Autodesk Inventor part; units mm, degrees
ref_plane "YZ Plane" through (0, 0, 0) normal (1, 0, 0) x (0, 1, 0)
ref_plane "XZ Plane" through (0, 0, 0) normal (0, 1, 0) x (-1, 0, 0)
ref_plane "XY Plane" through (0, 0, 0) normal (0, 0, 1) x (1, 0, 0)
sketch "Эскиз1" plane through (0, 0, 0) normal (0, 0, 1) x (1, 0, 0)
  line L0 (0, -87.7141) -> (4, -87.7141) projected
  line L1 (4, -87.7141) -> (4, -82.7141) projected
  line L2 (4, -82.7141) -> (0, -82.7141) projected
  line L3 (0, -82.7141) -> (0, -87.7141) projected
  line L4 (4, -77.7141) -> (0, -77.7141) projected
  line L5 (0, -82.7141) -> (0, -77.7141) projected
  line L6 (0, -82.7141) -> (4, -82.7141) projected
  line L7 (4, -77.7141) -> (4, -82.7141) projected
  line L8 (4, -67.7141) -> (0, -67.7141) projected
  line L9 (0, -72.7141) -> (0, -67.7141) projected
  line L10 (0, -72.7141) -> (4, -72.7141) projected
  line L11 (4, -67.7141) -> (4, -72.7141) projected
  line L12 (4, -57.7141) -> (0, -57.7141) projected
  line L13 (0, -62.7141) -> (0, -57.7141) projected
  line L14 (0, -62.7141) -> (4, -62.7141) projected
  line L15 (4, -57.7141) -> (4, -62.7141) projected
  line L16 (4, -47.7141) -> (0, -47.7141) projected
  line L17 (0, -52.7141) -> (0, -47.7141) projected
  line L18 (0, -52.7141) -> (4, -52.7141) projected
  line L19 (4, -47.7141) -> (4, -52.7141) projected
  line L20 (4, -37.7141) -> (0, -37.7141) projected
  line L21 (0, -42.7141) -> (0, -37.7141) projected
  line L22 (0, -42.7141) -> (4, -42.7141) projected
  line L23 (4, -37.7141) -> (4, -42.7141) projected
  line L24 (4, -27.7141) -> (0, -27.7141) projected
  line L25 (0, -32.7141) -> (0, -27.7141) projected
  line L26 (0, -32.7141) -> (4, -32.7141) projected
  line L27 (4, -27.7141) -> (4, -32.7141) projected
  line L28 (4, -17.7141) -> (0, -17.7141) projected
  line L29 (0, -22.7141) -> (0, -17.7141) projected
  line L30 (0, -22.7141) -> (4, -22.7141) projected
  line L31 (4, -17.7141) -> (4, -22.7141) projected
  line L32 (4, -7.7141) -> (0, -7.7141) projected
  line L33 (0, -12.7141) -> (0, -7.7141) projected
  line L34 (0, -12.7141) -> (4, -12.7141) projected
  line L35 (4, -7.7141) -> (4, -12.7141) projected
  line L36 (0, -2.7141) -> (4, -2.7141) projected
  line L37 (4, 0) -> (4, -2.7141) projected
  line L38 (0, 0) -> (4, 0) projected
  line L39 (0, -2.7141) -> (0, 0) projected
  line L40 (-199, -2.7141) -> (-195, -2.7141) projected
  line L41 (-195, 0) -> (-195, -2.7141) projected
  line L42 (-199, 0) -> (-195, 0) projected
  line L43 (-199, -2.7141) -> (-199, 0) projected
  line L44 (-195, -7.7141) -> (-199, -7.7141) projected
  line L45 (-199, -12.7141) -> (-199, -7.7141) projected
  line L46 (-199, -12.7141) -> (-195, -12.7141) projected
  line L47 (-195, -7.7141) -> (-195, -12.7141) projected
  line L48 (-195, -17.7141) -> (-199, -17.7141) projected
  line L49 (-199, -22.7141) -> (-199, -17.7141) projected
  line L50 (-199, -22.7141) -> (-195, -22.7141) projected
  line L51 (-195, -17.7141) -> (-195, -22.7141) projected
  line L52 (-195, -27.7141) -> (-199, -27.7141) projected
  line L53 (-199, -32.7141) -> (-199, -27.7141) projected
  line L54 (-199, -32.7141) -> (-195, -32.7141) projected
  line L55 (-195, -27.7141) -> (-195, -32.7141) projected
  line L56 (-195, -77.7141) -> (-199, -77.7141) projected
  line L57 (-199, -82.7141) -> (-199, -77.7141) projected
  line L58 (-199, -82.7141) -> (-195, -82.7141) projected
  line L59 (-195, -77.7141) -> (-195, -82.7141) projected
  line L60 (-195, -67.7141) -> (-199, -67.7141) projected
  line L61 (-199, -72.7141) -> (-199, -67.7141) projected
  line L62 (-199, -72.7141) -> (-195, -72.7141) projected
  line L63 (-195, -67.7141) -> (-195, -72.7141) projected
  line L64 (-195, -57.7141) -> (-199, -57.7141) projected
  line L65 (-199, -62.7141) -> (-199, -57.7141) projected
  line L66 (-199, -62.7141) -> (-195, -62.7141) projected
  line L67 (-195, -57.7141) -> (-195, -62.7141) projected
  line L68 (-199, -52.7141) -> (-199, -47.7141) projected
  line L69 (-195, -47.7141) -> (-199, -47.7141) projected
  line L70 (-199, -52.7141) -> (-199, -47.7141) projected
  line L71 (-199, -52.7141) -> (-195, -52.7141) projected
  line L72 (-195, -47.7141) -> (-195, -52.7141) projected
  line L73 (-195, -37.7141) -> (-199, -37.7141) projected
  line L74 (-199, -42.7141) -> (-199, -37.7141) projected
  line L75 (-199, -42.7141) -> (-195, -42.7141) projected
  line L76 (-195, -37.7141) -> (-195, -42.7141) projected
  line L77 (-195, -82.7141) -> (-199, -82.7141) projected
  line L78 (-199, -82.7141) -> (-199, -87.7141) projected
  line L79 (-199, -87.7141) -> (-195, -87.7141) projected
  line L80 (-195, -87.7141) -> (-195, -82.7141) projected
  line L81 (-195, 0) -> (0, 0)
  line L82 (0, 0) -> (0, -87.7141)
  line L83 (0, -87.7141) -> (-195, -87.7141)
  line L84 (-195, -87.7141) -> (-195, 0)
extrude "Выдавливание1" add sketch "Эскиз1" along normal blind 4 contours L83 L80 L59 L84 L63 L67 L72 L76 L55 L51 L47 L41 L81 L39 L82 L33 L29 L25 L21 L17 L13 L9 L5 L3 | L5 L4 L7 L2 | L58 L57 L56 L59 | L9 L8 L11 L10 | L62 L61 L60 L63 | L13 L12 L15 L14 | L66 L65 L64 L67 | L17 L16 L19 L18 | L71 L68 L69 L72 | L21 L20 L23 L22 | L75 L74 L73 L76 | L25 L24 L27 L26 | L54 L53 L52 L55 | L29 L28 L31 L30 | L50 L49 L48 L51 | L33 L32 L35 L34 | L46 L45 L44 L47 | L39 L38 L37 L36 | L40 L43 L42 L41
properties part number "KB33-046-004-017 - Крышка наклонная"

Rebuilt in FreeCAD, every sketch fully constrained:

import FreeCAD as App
import Part
import Sketcher

V = App.Vector

doc = App.newDocument("Part")
params = doc.addObject("Spreadsheet::Sheet", "Params")
for row, (alias, value) in enumerate([
    ("sketch1_width", "195 mm"),
    ("sketch1_width2", "4 mm"),
    ("sketch1_height", "5 mm"),
    ("pad1_length", "4 mm"),
], start=1):
    params.set(f"A{row}", alias)
    params.set(f"B{row}", "=" + value)
    params.setAlias(f"B{row}", alias)

body = doc.addObject("PartDesign::Body", "Body")

sketch1 = body.newObject("Sketcher::SketchObject", "Sketch")
sketch1.AttachmentSupport = (doc.getObject("XY_Plane"), [""])
sketch1.MapMode = "FlatFace"
sketch1.addGeometry([
    Part.LineSegment(V(-195, -87.7, 0), V(0, -87.7, 0)),
    Part.LineSegment(V(0, -87.7, 0), V(0, -82.7, 0)),
    Part.LineSegment(V(0, -82.7, 0), V(4, -82.7, 0)),
    Part.LineSegment(V(4, -82.7, 0), V(4, -77.7, 0)),
    Part.LineSegment(V(4, -77.7, 0), V(0, -77.7, 0)),
    Part.LineSegment(V(0, -77.7, 0), V(0, -72.7, 0)),
    Part.LineSegment(V(0, -72.7, 0), V(4, -72.7, 0)),
    Part.LineSegment(V(4, -72.7, 0), V(4, -67.7, 0)),
    Part.LineSegment(V(4, -67.7, 0), V(0, -67.7, 0)),
    Part.LineSegment(V(0, -67.7, 0), V(0, -62.7, 0)),
    Part.LineSegment(V(0, -62.7, 0), V(4, -62.7, 0)),
    Part.LineSegment(V(4, -62.7, 0), V(4, -57.7, 0)),
    Part.LineSegment(V(4, -57.7, 0), V(0, -57.7, 0)),
    Part.LineSegment(V(0, -57.7, 0), V(0, -52.7, 0)),
    Part.LineSegment(V(0, -52.7, 0), V(4, -52.7, 0)),
    Part.LineSegment(V(4, -52.7, 0), V(4, -47.7, 0)),
    Part.LineSegment(V(4, -47.7, 0), V(0, -47.7, 0)),
    Part.LineSegment(V(0, -47.7, 0), V(0, -42.7, 0)),
    Part.LineSegment(V(0, -42.7, 0), V(4, -42.7, 0)),
    Part.LineSegment(V(4, -42.7, 0), V(4, -37.7, 0)),
    Part.LineSegment(V(4, -37.7, 0), V(0, -37.7, 0)),
    Part.LineSegment(V(0, -37.7, 0), V(0, -32.7, 0)),
    Part.LineSegment(V(0, -32.7, 0), V(4, -32.7, 0)),
    Part.LineSegment(V(4, -32.7, 0), V(4, -27.7, 0)),
    Part.LineSegment(V(4, -27.7, 0), V(0, -27.7, 0)),
    Part.LineSegment(V(0, -27.7, 0), V(0, -22.7, 0)),
    Part.LineSegment(V(0, -22.7, 0), V(4, -22.7, 0)),
    Part.LineSegment(V(4, -22.7, 0), V(4, -17.7, 0)),
    Part.LineSegment(V(4, -17.7, 0), V(0, -17.7, 0)),
    Part.LineSegment(V(0, -17.7, 0), V(0, -12.7, 0)),
    Part.LineSegment(V(0, -12.7, 0), V(4, -12.7, 0)),
    Part.LineSegment(V(4, -12.7, 0), V(4, -7.7, 0)),
    Part.LineSegment(V(4, -7.7, 0), V(0, -7.7, 0)),
    Part.LineSegment(V(0, -7.7, 0), V(0, -2.7, 0)),
    Part.LineSegment(V(0, -2.7, 0), V(4, -2.7, 0)),
    Part.LineSegment(V(4, -2.7, 0), V(4, 0, 0)),
    Part.LineSegment(V(4, 0, 0), V(-199, 0, 0)),
    Part.LineSegment(V(-199, 0, 0), V(-199, -2.7, 0)),
    Part.LineSegment(V(-199, -2.7, 0), V(-195, -2.7, 0)),
    Part.LineSegment(V(-195, -2.7, 0), V(-195, -7.7, 0)),
    Part.LineSegment(V(-195, -7.7, 0), V(-199, -7.7, 0)),
    Part.LineSegment(V(-199, -7.7, 0), V(-199, -12.7, 0)),
    Part.LineSegment(V(-199, -12.7, 0), V(-195, -12.7, 0)),
    Part.LineSegment(V(-195, -12.7, 0), V(-195, -17.7, 0)),
    Part.LineSegment(V(-195, -17.7, 0), V(-199, -17.7, 0)),
    Part.LineSegment(V(-199, -17.7, 0), V(-199, -22.7, 0)),
    Part.LineSegment(V(-199, -22.7, 0), V(-195, -22.7, 0)),
    Part.LineSegment(V(-195, -22.7, 0), V(-195, -27.7, 0)),
    Part.LineSegment(V(-195, -27.7, 0), V(-199, -27.7, 0)),
    Part.LineSegment(V(-199, -27.7, 0), V(-199, -32.7, 0)),
    Part.LineSegment(V(-199, -32.7, 0), V(-195, -32.7, 0)),
    Part.LineSegment(V(-195, -32.7, 0), V(-195, -37.7, 0)),
    Part.LineSegment(V(-195, -37.7, 0), V(-199, -37.7, 0)),
    Part.LineSegment(V(-199, -37.7, 0), V(-199, -42.7, 0)),
    Part.LineSegment(V(-199, -42.7, 0), V(-195, -42.7, 0)),
    Part.LineSegment(V(-195, -42.7, 0), V(-195, -47.7, 0)),
    Part.LineSegment(V(-195, -47.7, 0), V(-199, -47.7, 0)),
    Part.LineSegment(V(-199, -47.7, 0), V(-199, -52.7, 0)),
    Part.LineSegment(V(-199, -52.7, 0), V(-195, -52.7, 0)),
    Part.LineSegment(V(-195, -52.7, 0), V(-195, -57.7, 0)),
    Part.LineSegment(V(-195, -57.7, 0), V(-199, -57.7, 0)),
    Part.LineSegment(V(-199, -57.7, 0), V(-199, -62.7, 0)),
    Part.LineSegment(V(-199, -62.7, 0), V(-195, -62.7, 0)),
    Part.LineSegment(V(-195, -62.7, 0), V(-195, -67.7, 0)),
    Part.LineSegment(V(-195, -67.7, 0), V(-199, -67.7, 0)),
    Part.LineSegment(V(-199, -67.7, 0), V(-199, -72.7, 0)),
    Part.LineSegment(V(-199, -72.7, 0), V(-195, -72.7, 0)),
    Part.LineSegment(V(-195, -72.7, 0), V(-195, -77.7, 0)),
    Part.LineSegment(V(-195, -77.7, 0), V(-199, -77.7, 0)),
    Part.LineSegment(V(-199, -77.7, 0), V(-199, -82.7, 0)),
    Part.LineSegment(V(-199, -82.7, 0), V(-195, -82.7, 0)),
    Part.LineSegment(V(-195, -82.7, 0), V(-195, -87.7, 0)),
], False)
sketch1.addConstraint([
    Sketcher.Constraint("Coincident", 0, 2, 1, 1),
    Sketcher.Constraint("Coincident", 1, 2, 2, 1),
    Sketcher.Constraint("Coincident", 2, 2, 3, 1),
    Sketcher.Constraint("Coincident", 3, 2, 4, 1),
    Sketcher.Constraint("Coincident", 4, 2, 5, 1),
    Sketcher.Constraint("Coincident", 5, 2, 6, 1),
    Sketcher.Constraint("Coincident", 6, 2, 7, 1),
    Sketcher.Constraint("Coincident", 7, 2, 8, 1),
    Sketcher.Constraint("Coincident", 8, 2, 9, 1),
    Sketcher.Constraint("Coincident", 9, 2, 10, 1),
    Sketcher.Constraint("Coincident", 10, 2, 11, 1),
    Sketcher.Constraint("Coincident", 11, 2, 12, 1),
    Sketcher.Constraint("Coincident", 12, 2, 13, 1),
    Sketcher.Constraint("Coincident", 13, 2, 14, 1),
    Sketcher.Constraint("Coincident", 14, 2, 15, 1),
    Sketcher.Constraint("Coincident", 15, 2, 16, 1),
    Sketcher.Constraint("Coincident", 16, 2, 17, 1),
    Sketcher.Constraint("Coincident", 17, 2, 18, 1),
    Sketcher.Constraint("Coincident", 18, 2, 19, 1),
    Sketcher.Constraint("Coincident", 19, 2, 20, 1),
    Sketcher.Constraint("Coincident", 20, 2, 21, 1),
    Sketcher.Constraint("Coincident", 21, 2, 22, 1),
    Sketcher.Constraint("Coincident", 22, 2, 23, 1),
    Sketcher.Constraint("Coincident", 23, 2, 24, 1),
    Sketcher.Constraint("Coincident", 24, 2, 25, 1),
    Sketcher.Constraint("Coincident", 25, 2, 26, 1),
    Sketcher.Constraint("Coincident", 26, 2, 27, 1),
    Sketcher.Constraint("Coincident", 27, 2, 28, 1),
    Sketcher.Constraint("Coincident", 28, 2, 29, 1),
    Sketcher.Constraint("Coincident", 29, 2, 30, 1),
    Sketcher.Constraint("Coincident", 30, 2, 31, 1),
    Sketcher.Constraint("Coincident", 31, 2, 32, 1),
    Sketcher.Constraint("Coincident", 32, 2, 33, 1),
    Sketcher.Constraint("Coincident", 33, 2, 34, 1),
    Sketcher.Constraint("Coincident", 34, 2, 35, 1),
    Sketcher.Constraint("Coincident", 35, 2, 36, 1),
    Sketcher.Constraint("Coincident", 36, 2, 37, 1),
    Sketcher.Constraint("Coincident", 37, 2, 38, 1),
    Sketcher.Constraint("Coincident", 38, 2, 39, 1),
    Sketcher.Constraint("Coincident", 39, 2, 40, 1),
    Sketcher.Constraint("Coincident", 40, 2, 41, 1),
    Sketcher.Constraint("Coincident", 41, 2, 42, 1),
    Sketcher.Constraint("Coincident", 42, 2, 43, 1),
    Sketcher.Constraint("Coincident", 43, 2, 44, 1),
    Sketcher.Constraint("Coincident", 44, 2, 45, 1),
    Sketcher.Constraint("Coincident", 45, 2, 46, 1),
    Sketcher.Constraint("Coincident", 46, 2, 47, 1),
    Sketcher.Constraint("Coincident", 47, 2, 48, 1),
    Sketcher.Constraint("Coincident", 48, 2, 49, 1),
    Sketcher.Constraint("Coincident", 49, 2, 50, 1),
    Sketcher.Constraint("Coincident", 50, 2, 51, 1),
    Sketcher.Constraint("Coincident", 51, 2, 52, 1),
    Sketcher.Constraint("Coincident", 52, 2, 53, 1),
    Sketcher.Constraint("Coincident", 53, 2, 54, 1),
    Sketcher.Constraint("Coincident", 54, 2, 55, 1),
    Sketcher.Constraint("Coincident", 55, 2, 56, 1),
    Sketcher.Constraint("Coincident", 56, 2, 57, 1),
    Sketcher.Constraint("Coincident", 57, 2, 58, 1),
    Sketcher.Constraint("Coincident", 58, 2, 59, 1),
    Sketcher.Constraint("Coincident", 59, 2, 60, 1),
    Sketcher.Constraint("Coincident", 60, 2, 61, 1),
    Sketcher.Constraint("Coincident", 61, 2, 62, 1),
    Sketcher.Constraint("Coincident", 62, 2, 63, 1),
    Sketcher.Constraint("Coincident", 63, 2, 64, 1),
    Sketcher.Constraint("Coincident", 64, 2, 65, 1),
    Sketcher.Constraint("Coincident", 65, 2, 66, 1),
    Sketcher.Constraint("Coincident", 66, 2, 67, 1),
    Sketcher.Constraint("Coincident", 67, 2, 68, 1),
    Sketcher.Constraint("Coincident", 68, 2, 69, 1),
    Sketcher.Constraint("Coincident", 69, 2, 70, 1),
    Sketcher.Constraint("Coincident", 70, 2, 71, 1),
    Sketcher.Constraint("Coincident", 71, 2, 0, 1),
    Sketcher.Constraint("Horizontal", 0),
    Sketcher.Constraint("Vertical", 1),
    Sketcher.Constraint("Horizontal", 2),
    Sketcher.Constraint("Vertical", 3),
    Sketcher.Constraint("Horizontal", 4),
    Sketcher.Constraint("Vertical", 5),
    Sketcher.Constraint("Horizontal", 6),
    Sketcher.Constraint("Vertical", 7),
    Sketcher.Constraint("Horizontal", 8),
    Sketcher.Constraint("Vertical", 9),
    Sketcher.Constraint("Horizontal", 10),
    Sketcher.Constraint("Vertical", 11),
    Sketcher.Constraint("Horizontal", 12),
    Sketcher.Constraint("Vertical", 13),
    Sketcher.Constraint("Horizontal", 14),
    Sketcher.Constraint("Vertical", 15),
    Sketcher.Constraint("Horizontal", 16),
    Sketcher.Constraint("Vertical", 17),
    Sketcher.Constraint("Horizontal", 18),
    Sketcher.Constraint("Vertical", 19),
    Sketcher.Constraint("Horizontal", 20),
    Sketcher.Constraint("Vertical", 21),
    Sketcher.Constraint("Horizontal", 22),
    Sketcher.Constraint("Vertical", 23),
    Sketcher.Constraint("Horizontal", 24),
    Sketcher.Constraint("Vertical", 25),
    Sketcher.Constraint("Horizontal", 26),
    Sketcher.Constraint("Vertical", 27),
    Sketcher.Constraint("Horizontal", 28),
    Sketcher.Constraint("Vertical", 29),
    Sketcher.Constraint("Horizontal", 30),
    Sketcher.Constraint("Vertical", 31),
    Sketcher.Constraint("Horizontal", 32),
    Sketcher.Constraint("Vertical", 33),
    Sketcher.Constraint("Horizontal", 34),
    Sketcher.Constraint("Vertical", 35),
    Sketcher.Constraint("Horizontal", 36),
    Sketcher.Constraint("Vertical", 37),
    Sketcher.Constraint("Horizontal", 38),
    Sketcher.Constraint("Vertical", 39),
    Sketcher.Constraint("Horizontal", 40),
    Sketcher.Constraint("Vertical", 41),
    Sketcher.Constraint("Horizontal", 42),
    Sketcher.Constraint("Vertical", 43),
    Sketcher.Constraint("Horizontal", 44),
    Sketcher.Constraint("Vertical", 45),
    Sketcher.Constraint("Horizontal", 46),
    Sketcher.Constraint("Vertical", 47),
    Sketcher.Constraint("Horizontal", 48),
    Sketcher.Constraint("Vertical", 49),
    Sketcher.Constraint("Horizontal", 50),
    Sketcher.Constraint("Vertical", 51),
    Sketcher.Constraint("Horizontal", 52),
    Sketcher.Constraint("Vertical", 53),
    Sketcher.Constraint("Horizontal", 54),
    Sketcher.Constraint("Vertical", 55),
    Sketcher.Constraint("Horizontal", 56),
    Sketcher.Constraint("Vertical", 57),
    Sketcher.Constraint("Horizontal", 58),
    Sketcher.Constraint("Vertical", 59),
    Sketcher.Constraint("Horizontal", 60),
    Sketcher.Constraint("Vertical", 61),
    Sketcher.Constraint("Horizontal", 62),
    Sketcher.Constraint("Vertical", 63),
    Sketcher.Constraint("Horizontal", 64),
    Sketcher.Constraint("Vertical", 65),
    Sketcher.Constraint("Horizontal", 66),
    Sketcher.Constraint("Vertical", 67),
    Sketcher.Constraint("Horizontal", 68),
    Sketcher.Constraint("Vertical", 69),
    Sketcher.Constraint("Horizontal", 70),
    Sketcher.Constraint("Vertical", 71),
    Sketcher.Constraint("PointOnObject", 0, 2, -2),
    Sketcher.Constraint("PointOnObject", 4, 2, -2),
    Sketcher.Constraint("PointOnObject", 8, 2, -2),
    Sketcher.Constraint("PointOnObject", 12, 2, -2),
    Sketcher.Constraint("PointOnObject", 16, 2, -2),
    Sketcher.Constraint("PointOnObject", 20, 2, -2),
    Sketcher.Constraint("PointOnObject", 24, 2, -2),
    Sketcher.Constraint("PointOnObject", 28, 2, -2),
    Sketcher.Constraint("PointOnObject", 32, 2, -2),
    Sketcher.Constraint("PointOnObject", 35, 2, -1),
    Sketcher.Constraint("Horizontal", 34, 2, 37, 2),
    Sketcher.Constraint("Horizontal", 32, 2, 39, 2),
    Sketcher.Constraint("Horizontal", 30, 2, 41, 2),
    Sketcher.Constraint("Horizontal", 28, 2, 43, 2),
    Sketcher.Constraint("Horizontal", 26, 2, 45, 2),
    Sketcher.Constraint("Horizontal", 24, 2, 47, 2),
    Sketcher.Constraint("Horizontal", 22, 2, 49, 2),
    Sketcher.Constraint("Horizontal", 20, 2, 51, 2),
    Sketcher.Constraint("Horizontal", 18, 2, 53, 2),
    Sketcher.Constraint("Horizontal", 16, 2, 55, 2),
    Sketcher.Constraint("Horizontal", 14, 2, 57, 2),
    Sketcher.Constraint("Horizontal", 12, 2, 59, 2),
    Sketcher.Constraint("Horizontal", 10, 2, 61, 2),
    Sketcher.Constraint("Horizontal", 8, 2, 63, 2),
    Sketcher.Constraint("Horizontal", 6, 2, 65, 2),
    Sketcher.Constraint("Horizontal", 4, 2, 67, 2),
    Sketcher.Constraint("Horizontal", 2, 2, 69, 2),
    Sketcher.Constraint("Vertical", 3, 2, 6, 2),
    Sketcher.Constraint("Vertical", 7, 2, 10, 2),
    Sketcher.Constraint("Vertical", 11, 2, 14, 2),
    Sketcher.Constraint("Vertical", 15, 2, 18, 2),
    Sketcher.Constraint("Vertical", 19, 2, 22, 2),
    Sketcher.Constraint("Vertical", 23, 2, 26, 2),
    Sketcher.Constraint("Vertical", 27, 2, 30, 2),
    Sketcher.Constraint("Vertical", 31, 2, 34, 2),
    Sketcher.Constraint("Vertical", 37, 2, 40, 2),
    Sketcher.Constraint("Vertical", 39, 2, 42, 2),
    Sketcher.Constraint("Vertical", 41, 2, 44, 2),
    Sketcher.Constraint("Vertical", 43, 2, 46, 2),
    Sketcher.Constraint("Vertical", 45, 2, 48, 2),
    Sketcher.Constraint("Vertical", 47, 2, 50, 2),
    Sketcher.Constraint("Vertical", 49, 2, 52, 2),
    Sketcher.Constraint("Vertical", 51, 2, 54, 2),
    Sketcher.Constraint("Vertical", 53, 2, 56, 2),
    Sketcher.Constraint("Vertical", 55, 2, 58, 2),
    Sketcher.Constraint("Vertical", 57, 2, 60, 2),
    Sketcher.Constraint("Vertical", 59, 2, 62, 2),
    Sketcher.Constraint("Vertical", 61, 2, 64, 2),
    Sketcher.Constraint("Vertical", 63, 2, 66, 2),
    Sketcher.Constraint("Vertical", 65, 2, 68, 2),
    Sketcher.Constraint("Vertical", 67, 2, 70, 2),
    Sketcher.Constraint("Equal", 34, 38),
    Sketcher.Constraint("Equal", 1, 3),
    Sketcher.Constraint("Equal", 3, 5),
    Sketcher.Constraint("Equal", 5, 7),
    Sketcher.Constraint("Equal", 7, 9),
    Sketcher.Constraint("Equal", 9, 11),
    Sketcher.Constraint("Equal", 11, 13),
    Sketcher.Constraint("Equal", 13, 15),
    Sketcher.Constraint("Equal", 15, 17),
    Sketcher.Constraint("Equal", 17, 19),
    Sketcher.Constraint("Equal", 19, 21),
    Sketcher.Constraint("Equal", 21, 23),
    Sketcher.Constraint("Equal", 23, 25),
    Sketcher.Constraint("Equal", 25, 27),
    Sketcher.Constraint("Equal", 27, 29),
    Sketcher.Constraint("Equal", 29, 31),
    Sketcher.Constraint("Equal", 31, 33),
    Sketcher.Constraint("DistanceX", 0, 1, 0, 2, 195.0),
    Sketcher.Constraint("DistanceX", 2, 1, 2, 2, 4.0),
    Sketcher.Constraint("DistanceY", 1, 1, 1, 2, 5.0),
    Sketcher.Constraint("DistanceY", 35, 1, 35, 2, 2.714),
])
sketch1.setExpression("Constraints[212]", "Params.sketch1_width")
sketch1.setExpression("Constraints[213]", "Params.sketch1_width2")
sketch1.setExpression("Constraints[214]", "Params.sketch1_height")
pad1 = body.newObject("PartDesign::Pad", "Pad")
pad1.Profile = sketch1
pad1.setExpression("Length", "Params.pad1_length")

doc.recompute()
